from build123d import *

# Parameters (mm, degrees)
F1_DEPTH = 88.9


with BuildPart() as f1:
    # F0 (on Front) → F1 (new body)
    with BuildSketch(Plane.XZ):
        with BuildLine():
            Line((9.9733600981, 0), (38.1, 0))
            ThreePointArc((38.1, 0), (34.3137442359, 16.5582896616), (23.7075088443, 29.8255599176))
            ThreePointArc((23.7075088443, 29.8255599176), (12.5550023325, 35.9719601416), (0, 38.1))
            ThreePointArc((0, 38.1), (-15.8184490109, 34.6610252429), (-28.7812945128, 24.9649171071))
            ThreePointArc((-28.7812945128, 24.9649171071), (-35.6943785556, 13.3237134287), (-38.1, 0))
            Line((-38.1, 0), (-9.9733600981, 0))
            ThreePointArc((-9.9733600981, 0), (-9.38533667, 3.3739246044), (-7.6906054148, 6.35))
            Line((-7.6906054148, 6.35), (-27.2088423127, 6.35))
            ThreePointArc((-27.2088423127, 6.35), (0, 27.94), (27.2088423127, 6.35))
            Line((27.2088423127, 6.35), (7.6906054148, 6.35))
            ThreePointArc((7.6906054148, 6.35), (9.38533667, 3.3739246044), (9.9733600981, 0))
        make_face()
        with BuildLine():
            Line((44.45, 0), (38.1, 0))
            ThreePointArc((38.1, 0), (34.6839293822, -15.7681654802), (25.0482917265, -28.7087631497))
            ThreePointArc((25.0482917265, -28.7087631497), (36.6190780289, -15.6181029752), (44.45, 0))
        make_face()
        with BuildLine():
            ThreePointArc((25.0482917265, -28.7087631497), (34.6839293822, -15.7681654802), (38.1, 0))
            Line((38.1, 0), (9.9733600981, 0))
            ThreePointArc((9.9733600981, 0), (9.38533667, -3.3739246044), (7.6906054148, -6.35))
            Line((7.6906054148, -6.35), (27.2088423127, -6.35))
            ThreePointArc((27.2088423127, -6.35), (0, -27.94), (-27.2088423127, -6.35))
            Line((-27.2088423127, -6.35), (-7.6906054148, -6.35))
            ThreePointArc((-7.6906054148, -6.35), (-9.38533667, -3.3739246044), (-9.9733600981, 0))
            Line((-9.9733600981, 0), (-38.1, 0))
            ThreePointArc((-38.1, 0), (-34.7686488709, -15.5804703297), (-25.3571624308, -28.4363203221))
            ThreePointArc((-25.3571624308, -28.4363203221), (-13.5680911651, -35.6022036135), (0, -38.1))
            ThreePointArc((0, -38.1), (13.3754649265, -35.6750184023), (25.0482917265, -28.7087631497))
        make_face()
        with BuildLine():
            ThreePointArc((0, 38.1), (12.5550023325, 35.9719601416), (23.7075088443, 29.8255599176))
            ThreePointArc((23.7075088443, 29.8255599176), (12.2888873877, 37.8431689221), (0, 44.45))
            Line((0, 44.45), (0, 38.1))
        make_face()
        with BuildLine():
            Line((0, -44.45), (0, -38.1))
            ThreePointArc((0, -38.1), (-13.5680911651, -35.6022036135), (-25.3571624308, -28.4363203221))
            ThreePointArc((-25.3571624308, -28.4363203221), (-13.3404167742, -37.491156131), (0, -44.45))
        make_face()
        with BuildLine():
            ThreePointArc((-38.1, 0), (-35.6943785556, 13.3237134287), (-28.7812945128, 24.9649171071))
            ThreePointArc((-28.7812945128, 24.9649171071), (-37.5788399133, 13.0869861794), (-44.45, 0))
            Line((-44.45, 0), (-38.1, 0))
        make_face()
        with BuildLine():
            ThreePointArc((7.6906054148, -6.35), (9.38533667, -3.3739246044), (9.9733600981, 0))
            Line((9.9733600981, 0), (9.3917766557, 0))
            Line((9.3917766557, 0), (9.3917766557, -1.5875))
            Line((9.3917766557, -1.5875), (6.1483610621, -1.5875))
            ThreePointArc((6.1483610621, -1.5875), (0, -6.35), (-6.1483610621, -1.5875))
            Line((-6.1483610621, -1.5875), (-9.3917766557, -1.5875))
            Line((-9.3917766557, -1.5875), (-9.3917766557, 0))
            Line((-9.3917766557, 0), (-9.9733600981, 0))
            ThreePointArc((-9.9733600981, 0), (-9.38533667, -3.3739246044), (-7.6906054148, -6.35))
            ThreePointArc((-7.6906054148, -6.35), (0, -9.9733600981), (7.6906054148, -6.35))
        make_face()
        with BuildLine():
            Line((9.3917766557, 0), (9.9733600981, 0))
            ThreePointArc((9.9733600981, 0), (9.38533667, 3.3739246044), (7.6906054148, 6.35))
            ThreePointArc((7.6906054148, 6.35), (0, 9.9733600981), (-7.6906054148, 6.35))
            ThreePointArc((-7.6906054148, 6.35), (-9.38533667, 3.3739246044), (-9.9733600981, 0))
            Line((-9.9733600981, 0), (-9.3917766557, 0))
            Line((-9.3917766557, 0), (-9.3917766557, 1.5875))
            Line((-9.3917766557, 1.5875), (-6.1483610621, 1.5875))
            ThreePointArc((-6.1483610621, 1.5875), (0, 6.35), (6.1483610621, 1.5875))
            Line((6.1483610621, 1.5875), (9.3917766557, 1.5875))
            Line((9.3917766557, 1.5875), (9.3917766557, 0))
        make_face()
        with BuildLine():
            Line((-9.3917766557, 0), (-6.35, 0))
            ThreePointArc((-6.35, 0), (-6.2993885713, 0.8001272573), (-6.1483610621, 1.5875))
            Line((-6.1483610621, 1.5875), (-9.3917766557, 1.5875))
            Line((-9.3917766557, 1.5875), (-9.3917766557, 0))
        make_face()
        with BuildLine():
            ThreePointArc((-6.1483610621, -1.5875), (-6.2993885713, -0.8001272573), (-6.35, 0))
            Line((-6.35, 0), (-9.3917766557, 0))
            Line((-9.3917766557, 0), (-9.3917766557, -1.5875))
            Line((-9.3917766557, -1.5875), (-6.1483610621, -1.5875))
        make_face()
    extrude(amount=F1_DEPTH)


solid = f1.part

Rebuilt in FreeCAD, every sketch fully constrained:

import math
import FreeCAD as App
import Part
import Sketcher

V = App.Vector
Q = App.Units.Quantity

doc = App.newDocument("Part")
body = doc.addObject("PartDesign::Body", "Body")

# Sketch on XZ plane
sketch1 = body.newObject("Sketcher::SketchObject", "Sketch")
sketch1.AttachmentSupport = (doc.getObject("XZ_Plane"), [""])
sketch1.MapMode = "FlatFace"
sketch1.addGeometry(Part.ArcOfCircle(Part.Circle(V(0, 0, 0), V(0, 0, 1), 38.1), math.radians(0), math.radians(51.519787)), False)
sketch1.addGeometry(Part.ArcOfCircle(Part.Circle(V(-49.368016, -62.108117, 0), V(0, 0, 1), 117.438636), math.radians(51.519787), math.radians(65.14187)), False)
sketch1.addGeometry(Part.LineSegment(V(0, 44.45, 0), V(0, 38.1, 0)), False)
sketch1.addGeometry(Part.ArcOfCircle(Part.Circle(V(0, 0, 0), V(0, 0, 1), 38.1), math.radians(90), math.radians(139.061606)), False)
sketch1.addGeometry(Part.ArcOfCircle(Part.Circle(V(43.78573, -37.979776, 0), V(0, 0, 1), 96.062518), math.radians(139.061606), math.radians(156.711248)), False)
sketch1.addGeometry(Part.LineSegment(V(-44.45, 0, 0), V(-38.1, 0, 0)), False)
sketch1.addGeometry(Part.ArcOfCircle(Part.Circle(V(0, 0, 0), V(0, 0, 1), 38.1), math.radians(180), math.radians(228.276056)), False)
sketch1.addGeometry(Part.ArcOfCircle(Part.Circle(V(35.423592, 39.725132, 0), V(0, 0, 1), 91.325154), math.radians(-131.723944), math.radians(-112.822918)), False)
sketch1.addGeometry(Part.LineSegment(V(0, -44.45, 0), V(0, -38.1, 0)), False)
sketch1.addGeometry(Part.ArcOfCircle(Part.Circle(V(0, 0, 0), V(0, 0, 1), 38.1), math.radians(-90), math.radians(-48.89542)), False)
sketch1.addGeometry(Part.ArcOfCircle(Part.Circle(V(-19.411007, 22.247665, 0), V(0, 0, 1), 67.625342), math.radians(-48.89542), math.radians(-19.207129)), False)
sketch1.addGeometry(Part.LineSegment(V(44.45, 0, 0), V(38.1, 0, 0)), False)
sketch1.addGeometry(Part.LineSegment(V(-7.690605, 6.35, 0), V(-27.208842, 6.35, 0)), False)
sketch1.addGeometry(Part.ArcOfCircle(Part.Circle(V(0, 0, 0), V(0, 0, 1), 27.94), math.radians(13.136559), math.radians(166.863441)), False)
sketch1.addGeometry(Part.LineSegment(V(27.208842, 6.35, 0), V(7.690605, 6.35, 0)), False)
sketch1.addGeometry(Part.ArcOfCircle(Part.Circle(V(0, 0, 0), V(0, 0, 1), 9.97336), math.radians(39.545899), math.radians(140.454101)), False)
sketch1.addGeometry(Part.LineSegment(V(9.391777, -1.5875, 0), V(6.148361, -1.5875, 0)), False)
sketch1.addGeometry(Part.ArcOfCircle(Part.Circle(V(0, 0, 0), V(0, 0, 1), 6.35), math.radians(-165.522488), math.radians(-14.477512)), False)
sketch1.addGeometry(Part.ArcOfCircle(Part.Circle(V(0, 0, 0), V(0, 0, 1), 6.35), math.radians(180), math.radians(194.477512)), False)
sketch1.addGeometry(Part.ArcOfCircle(Part.Circle(V(0, 0, 0), V(0, 0, 1), 6.35), math.radians(165.522488), math.radians(180)), False)
sketch1.addGeometry(Part.ArcOfCircle(Part.Circle(V(0, 0, 0), V(0, 0, 1), 6.35), math.radians(14.477512), math.radians(165.522488)), False)
sketch1.addGeometry(Part.LineSegment(V(6.148361, 1.5875, 0), V(9.391777, 1.5875, 0)), False)
sketch1.addGeometry(Part.LineSegment(V(9.391777, 1.5875, 0), V(9.391777, -1.5875, 0)), False)
sketch1.addGeometry(Part.LineSegment(V(7.690605, -6.35, 0), V(27.208842, -6.35, 0)), False)
sketch1.addGeometry(Part.ArcOfCircle(Part.Circle(V(0, 0, 0), V(0, 0, 1), 27.94), math.radians(-166.863441), math.radians(-13.136559)), False)
sketch1.addGeometry(Part.LineSegment(V(-27.208842, -6.35, 0), V(-7.690605, -6.35, 0)), False)
sketch1.addGeometry(Part.ArcOfCircle(Part.Circle(V(0, 0, 0), V(0, 0, 1), 9.97336), math.radians(-140.454101), math.radians(-39.545899)), False)
sketch1.addConstraint(Sketcher.Constraint("Tangent", 0, 2, 1, 1))
sketch1.addConstraint(Sketcher.Constraint("Coincident", 1, 2, 2, 1))
sketch1.addConstraint(Sketcher.Constraint("Coincident", 2, 2, 3, 1))
sketch1.addConstraint(Sketcher.Constraint("Tangent", 3, 2, 4, 1))
sketch1.addConstraint(Sketcher.Constraint("Coincident", 4, 2, 5, 1))
sketch1.addConstraint(Sketcher.Constraint("Coincident", 5, 2, 6, 1))
sketch1.addConstraint(Sketcher.Constraint("Tangent", 6, 2, 7, 1))
sketch1.addConstraint(Sketcher.Constraint("Coincident", 7, 2, 8, 1))
sketch1.addConstraint(Sketcher.Constraint("Coincident", 8, 2, 9, 1))
sketch1.addConstraint(Sketcher.Constraint("Tangent", 9, 2, 10, 1))
sketch1.addConstraint(Sketcher.Constraint("Coincident", 10, 2, 11, 1))
sketch1.addConstraint(Sketcher.Constraint("Coincident", 11, 2, 0, 1))
sketch1.addConstraint(Sketcher.Constraint("Coincident", 12, 2, 13, 2))
sketch1.addConstraint(Sketcher.Constraint("Coincident", 13, 1, 14, 1))
sketch1.addConstraint(Sketcher.Constraint("Coincident", 14, 2, 15, 1))
sketch1.addConstraint(Sketcher.Constraint("Coincident", 15, 2, 12, 1))
sketch1.addConstraint(Sketcher.Constraint("Coincident", 16, 2, 17, 2))
sketch1.addConstraint(Sketcher.Constraint("Tangent", 17, 1, 18, 2))
sketch1.addConstraint(Sketcher.Constraint("Tangent", 18, 1, 19, 2))
sketch1.addConstraint(Sketcher.Constraint("Tangent", 19, 1, 20, 2))
sketch1.addConstraint(Sketcher.Constraint("Coincident", 20, 1, 21, 1))
sketch1.addConstraint(Sketcher.Constraint("Coincident", 21, 2, 22, 1))
sketch1.addConstraint(Sketcher.Constraint("Coincident", 22, 2, 16, 1))
sketch1.addConstraint(Sketcher.Constraint("Coincident", 23, 2, 24, 2))
sketch1.addConstraint(Sketcher.Constraint("Coincident", 24, 1, 25, 1))
sketch1.addConstraint(Sketcher.Constraint("Coincident", 25, 2, 26, 1))
sketch1.addConstraint(Sketcher.Constraint("Coincident", 26, 2, 23, 1))
sketch1.addConstraint(Sketcher.Constraint("Vertical", 2))
sketch1.addConstraint(Sketcher.Constraint("Horizontal", 5))
sketch1.addConstraint(Sketcher.Constraint("Vertical", 8))
sketch1.addConstraint(Sketcher.Constraint("Horizontal", 11))
sketch1.addConstraint(Sketcher.Constraint("Horizontal", 12))
sketch1.addConstraint(Sketcher.Constraint("Horizontal", 14))
sketch1.addConstraint(Sketcher.Constraint("Horizontal", 16))
sketch1.addConstraint(Sketcher.Constraint("Horizontal", 21))
sketch1.addConstraint(Sketcher.Constraint("Vertical", 22))
sketch1.addConstraint(Sketcher.Constraint("Horizontal", 23))
sketch1.addConstraint(Sketcher.Constraint("Horizontal", 25))
sketch1.addConstraint(Sketcher.Constraint("Coincident", 0, 3, -1, 1))
sketch1.addConstraint(Sketcher.Constraint("Coincident", 3, 3, -1, 1))
sketch1.addConstraint(Sketcher.Constraint("Coincident", 6, 3, -1, 1))
sketch1.addConstraint(Sketcher.Constraint("Coincident", 9, 3, -1, 1))
sketch1.addConstraint(Sketcher.Constraint("Coincident", 13, 3, -1, 1))
sketch1.addConstraint(Sketcher.Constraint("Coincident", 15, 3, -1, 1))
sketch1.addConstraint(Sketcher.Constraint("Coincident", 17, 3, -1, 1))
sketch1.addConstraint(Sketcher.Constraint("Coincident", 19, 3, -1, 1))
sketch1.addConstraint(Sketcher.Constraint("Coincident", 24, 3, -1, 1))
sketch1.addConstraint(Sketcher.Constraint("Coincident", 26, 3, -1, 1))
sketch1.addConstraint(Sketcher.Constraint("Equal", 0, 3))
sketch1.addConstraint(Sketcher.Constraint("Equal", 3, 6))
sketch1.addConstraint(Sketcher.Constraint("Equal", 6, 9))
sketch1.addConstraint(Sketcher.Constraint("Equal", 19, 20))
sketch1.addConstraint(Sketcher.Constraint("Equal", 13, 24))
sketch1.addConstraint(Sketcher.Constraint("Equal", 15, 26))
sketch1.addConstraint(Sketcher.Constraint("Symmetric", 1, 2, 7, 2, -1, 1))
sketch1.addConstraint(Sketcher.Constraint("Symmetric", 4, 2, 10, 2, -1, 1))
sketch1.addConstraint(Sketcher.Constraint("PointOnObject", 1, 2, -2))
sketch1.addConstraint(Sketcher.Constraint("PointOnObject", 4, 2, -1))
sketch1.addConstraint(Sketcher.Constraint("PointOnObject", 18, 1, -1))
sketch1.addConstraint(Sketcher.Constraint("Horizontal", 12, 2, 13, 1))
sketch1.addConstraint(Sketcher.Constraint("Horizontal", 16, 2, 17, 1))
sketch1.addConstraint(Sketcher.Constraint("Horizontal", 19, 1, 20, 1))
sketch1.addConstraint(Sketcher.Constraint("Horizontal", 23, 2, 24, 1))
sketch1.addConstraint(Sketcher.Constraint("Vertical", 17, 1, 19, 1))
sketch1.addConstraint(Sketcher.Constraint("Vertical", 13, 1, 23, 2))
sketch1.addConstraint(Sketcher.Constraint("Equal", 11, 2))
sketch1.addConstraint(Sketcher.Constraint("Radius", 0, Q("1.5 in")))
sketch1.addConstraint(Sketcher.Constraint("Radius", 13, Q("1.1 in")))
sketch1.addConstraint(Sketcher.Constraint("Radius", 17, Q("0.25 in")))
sketch1.addConstraint(Sketcher.Constraint("DistanceX", 5, 1, 5, 2, Q("0.25 in")))
sketch1.addConstraint(Sketcher.Constraint("DistanceY", 23, 2, 13, 1, Q("0.5 in")))
sketch1.addConstraint(Sketcher.Constraint("DistanceY", 22, 2, 22, 1, Q("0.125 in")))
sketch1.addConstraint(Sketcher.Constraint("Radius", 10, 67.625342))
sketch1.addConstraint(Sketcher.Constraint("Radius", 15, 9.97336))
sketch1.addConstraint(Sketcher.Constraint("Radius", 1, 117.438636))
sketch1.addConstraint(Sketcher.Constraint("Radius", 4, 96.062518))
sketch1.addConstraint(Sketcher.Constraint("Radius", 7, 91.325154))
sketch1.addConstraint(Sketcher.Constraint("DistanceX", 16, 2, 16, 1, 3.243416))
pad1 = body.newObject("PartDesign::Pad", "Pad")
pad1.Profile = sketch1
pad1.Length = Q("3.5 in")

doc.recompute()
